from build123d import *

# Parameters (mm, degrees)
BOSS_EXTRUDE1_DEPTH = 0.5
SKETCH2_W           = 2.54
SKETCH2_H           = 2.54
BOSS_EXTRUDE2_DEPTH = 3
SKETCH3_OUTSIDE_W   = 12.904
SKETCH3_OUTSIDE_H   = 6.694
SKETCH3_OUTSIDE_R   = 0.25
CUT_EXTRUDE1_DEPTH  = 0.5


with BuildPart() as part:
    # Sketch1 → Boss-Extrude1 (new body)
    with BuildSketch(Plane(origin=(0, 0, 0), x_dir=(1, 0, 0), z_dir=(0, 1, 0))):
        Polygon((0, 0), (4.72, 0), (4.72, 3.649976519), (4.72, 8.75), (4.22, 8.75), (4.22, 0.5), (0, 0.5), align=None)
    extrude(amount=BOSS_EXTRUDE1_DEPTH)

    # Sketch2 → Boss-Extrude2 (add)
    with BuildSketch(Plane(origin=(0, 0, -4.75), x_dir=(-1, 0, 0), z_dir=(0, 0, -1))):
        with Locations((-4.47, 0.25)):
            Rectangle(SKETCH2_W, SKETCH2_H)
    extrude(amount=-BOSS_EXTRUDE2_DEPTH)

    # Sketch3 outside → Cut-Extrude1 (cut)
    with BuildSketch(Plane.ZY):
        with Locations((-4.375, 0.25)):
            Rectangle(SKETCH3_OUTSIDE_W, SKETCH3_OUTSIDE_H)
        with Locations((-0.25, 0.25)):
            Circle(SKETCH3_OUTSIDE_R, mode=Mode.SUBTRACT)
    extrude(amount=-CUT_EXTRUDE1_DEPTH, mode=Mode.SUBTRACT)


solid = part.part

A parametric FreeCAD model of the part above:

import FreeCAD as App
import Part
import Sketcher
from FreeCAD import Vector

doc = App.newDocument("Part")
body = doc.addObject("PartDesign::Body", "Body")

# Sketch on XZ plane
sketch1 = doc.addObject("Sketcher::SketchObject", "Sketch")
body.addObject(sketch1)
sketch1.AttachmentSupport = (doc.XZ_Plane, [""])
sketch1.MapMode = "FlatFace"
sketch1.addGeometry(Part.LineSegment(Vector(0, 0, 0), Vector(4.72, 0, 0)), False)
sketch1.addGeometry(Part.LineSegment(Vector(4.72, 0, 0), Vector(4.72, -8.75, 0)), False)
sketch1.addGeometry(Part.LineSegment(Vector(4.72, -8.75, 0), Vector(4.22, -8.75, 0)), False)
sketch1.addGeometry(Part.LineSegment(Vector(4.22, -8.75, 0), Vector(4.22, -0.5, 0)), False)
sketch1.addGeometry(Part.LineSegment(Vector(4.22, -0.5, 0), Vector(0, -0.5, 0)), False)
sketch1.addGeometry(Part.LineSegment(Vector(0, -0.5, 0), Vector(0, 0, 0)), False)
sketch1.addConstraint(Sketcher.Constraint("Coincident", 0, 2, 1, 1))
sketch1.addConstraint(Sketcher.Constraint("Coincident", 1, 2, 2, 1))
sketch1.addConstraint(Sketcher.Constraint("Coincident", 2, 2, 3, 1))
sketch1.addConstraint(Sketcher.Constraint("Coincident", 3, 2, 4, 1))
sketch1.addConstraint(Sketcher.Constraint("Coincident", 4, 2, 5, 1))
sketch1.addConstraint(Sketcher.Constraint("Coincident", 5, 2, 0, 1))
sketch1.addConstraint(Sketcher.Constraint("Horizontal", 0))
sketch1.addConstraint(Sketcher.Constraint("Vertical", 1))
sketch1.addConstraint(Sketcher.Constraint("Horizontal", 2))
sketch1.addConstraint(Sketcher.Constraint("Vertical", 3))
sketch1.addConstraint(Sketcher.Constraint("Horizontal", 4))
sketch1.addConstraint(Sketcher.Constraint("Vertical", 5))
sketch1.addConstraint(Sketcher.Constraint("Coincident", 5, 2, -1, 1))
sketch1.addConstraint(Sketcher.Constraint("Equal", 2, 5))
sketch1.addConstraint(Sketcher.Constraint("DistanceX", 2, 2, 2, 1, 0.5))
sketch1.addConstraint(Sketcher.Constraint("DistanceX", 0, 1, 0, 2, 4.72))
sketch1.addConstraint(Sketcher.Constraint("DistanceY", 1, 2, 1, 1, 8.75))
pad1 = doc.addObject("PartDesign::Pad", "Pad")
body.addObject(pad1)
pad1.Profile = sketch1
pad1.Length = 0.5
pad1.Reversed = True

# Sketch on XY plane
sketch2 = doc.addObject("Sketcher::SketchObject", "Sketch001")
body.addObject(sketch2)
sketch2.AttachmentSupport = (doc.XY_Plane, [""])
sketch2.MapMode = "FlatFace"
sketch2.AttachmentOffset = App.Placement(Vector(0, 0, -4.75), App.Rotation())
sketch2.addGeometry(Part.LineSegment(Vector(5.74, 1.52, 0), Vector(5.74, -1.02, 0)), False)
sketch2.addGeometry(Part.LineSegment(Vector(5.74, -1.02, 0), Vector(3.2, -1.02, 0)), False)
sketch2.addGeometry(Part.LineSegment(Vector(3.2, -1.02, 0), Vector(3.2, 1.52, 0)), False)
sketch2.addGeometry(Part.LineSegment(Vector(3.2, 1.52, 0), Vector(5.74, 1.52, 0)), False)
sketch2.addConstraint(Sketcher.Constraint("Coincident", 0, 2, 1, 1))
sketch2.addConstraint(Sketcher.Constraint("Coincident", 1, 2, 2, 1))
sketch2.addConstraint(Sketcher.Constraint("Coincident", 2, 2, 3, 1))
sketch2.addConstraint(Sketcher.Constraint("Coincident", 3, 2, 0, 1))
sketch2.addConstraint(Sketcher.Constraint("Vertical", 0))
sketch2.addConstraint(Sketcher.Constraint("Horizontal", 1))
sketch2.addConstraint(Sketcher.Constraint("Vertical", 2))
sketch2.addConstraint(Sketcher.Constraint("Horizontal", 3))
sketch2.addConstraint(Sketcher.Constraint("Equal", 3, 0))
sketch2.addConstraint(Sketcher.Constraint("DistanceX", 1, 2, 1, 1, 2.54))
sketch2.addConstraint(Sketcher.Constraint("DistanceX", -1, 1, 1, 2, 3.2))
sketch2.addConstraint(Sketcher.Constraint("DistanceY", 0, 2, -1, 1, 1.02))
pad2 = doc.addObject("PartDesign::Pad", "Pad001")
body.addObject(pad2)
pad2.Profile = sketch2
pad2.Length = 3

# Sketch on YZ plane
sketch3 = doc.addObject("Sketcher::SketchObject", "Sketch002")
body.addObject(sketch3)
sketch3.AttachmentSupport = (doc.YZ_Plane, [""])
sketch3.MapMode = "FlatFace"
sketch3.addGeometry(Part.LineSegment(Vector(3.597, -10.827, 0), Vector(-3.097, -10.827, 0)), False)
sketch3.addGeometry(Part.LineSegment(Vector(-3.097, -10.827, 0), Vector(-3.097, 2.077, 0)), False)
sketch3.addGeometry(Part.LineSegment(Vector(-3.097, 2.077, 0), Vector(3.597, 2.077, 0)), False)
sketch3.addGeometry(Part.LineSegment(Vector(3.597, 2.077, 0), Vector(3.597, -10.827, 0)), False)
sketch3.addGeometry(Part.Circle(Vector(0.25, -0.25, 0), Vector(0, 0, 1), 0.25), False)
sketch3.addConstraint(Sketcher.Constraint("Coincident", 0, 2, 1, 1))
sketch3.addConstraint(Sketcher.Constraint("Coincident", 1, 2, 2, 1))
sketch3.addConstraint(Sketcher.Constraint("Coincident", 2, 2, 3, 1))
sketch3.addConstraint(Sketcher.Constraint("Coincident", 3, 2, 0, 1))
sketch3.addConstraint(Sketcher.Constraint("Horizontal", 0))
sketch3.addConstraint(Sketcher.Constraint("Vertical", 1))
sketch3.addConstraint(Sketcher.Constraint("Horizontal", 2))
sketch3.addConstraint(Sketcher.Constraint("Vertical", 3))
sketch3.addConstraint(Sketcher.Constraint("Diameter", 4, 0.5))
sketch3.addConstraint(Sketcher.Constraint("DistanceX", 0, 2, 0, 1, 6.694))
sketch3.addConstraint(Sketcher.Constraint("DistanceY", 1, 1, 1, 2, 12.904))
sketch3.addConstraint(Sketcher.Constraint("DistanceX", -1, 1, 4, 3, 0.25))
sketch3.addConstraint(Sketcher.Constraint("DistanceY", 4, 3, -1, 1, 0.25))
sketch3.addConstraint(Sketcher.Constraint("DistanceX", 0, 2, -1, 1, 3.097))
sketch3.addConstraint(Sketcher.Constraint("DistanceY", 0, 2, -1, 1, 10.827))
pocket1 = doc.addObject("PartDesign::Pocket", "Pocket")
body.addObject(pocket1)
pocket1.Profile = sketch3
pocket1.Length = 0.5
pocket1.Reversed = True

doc.recompute()
